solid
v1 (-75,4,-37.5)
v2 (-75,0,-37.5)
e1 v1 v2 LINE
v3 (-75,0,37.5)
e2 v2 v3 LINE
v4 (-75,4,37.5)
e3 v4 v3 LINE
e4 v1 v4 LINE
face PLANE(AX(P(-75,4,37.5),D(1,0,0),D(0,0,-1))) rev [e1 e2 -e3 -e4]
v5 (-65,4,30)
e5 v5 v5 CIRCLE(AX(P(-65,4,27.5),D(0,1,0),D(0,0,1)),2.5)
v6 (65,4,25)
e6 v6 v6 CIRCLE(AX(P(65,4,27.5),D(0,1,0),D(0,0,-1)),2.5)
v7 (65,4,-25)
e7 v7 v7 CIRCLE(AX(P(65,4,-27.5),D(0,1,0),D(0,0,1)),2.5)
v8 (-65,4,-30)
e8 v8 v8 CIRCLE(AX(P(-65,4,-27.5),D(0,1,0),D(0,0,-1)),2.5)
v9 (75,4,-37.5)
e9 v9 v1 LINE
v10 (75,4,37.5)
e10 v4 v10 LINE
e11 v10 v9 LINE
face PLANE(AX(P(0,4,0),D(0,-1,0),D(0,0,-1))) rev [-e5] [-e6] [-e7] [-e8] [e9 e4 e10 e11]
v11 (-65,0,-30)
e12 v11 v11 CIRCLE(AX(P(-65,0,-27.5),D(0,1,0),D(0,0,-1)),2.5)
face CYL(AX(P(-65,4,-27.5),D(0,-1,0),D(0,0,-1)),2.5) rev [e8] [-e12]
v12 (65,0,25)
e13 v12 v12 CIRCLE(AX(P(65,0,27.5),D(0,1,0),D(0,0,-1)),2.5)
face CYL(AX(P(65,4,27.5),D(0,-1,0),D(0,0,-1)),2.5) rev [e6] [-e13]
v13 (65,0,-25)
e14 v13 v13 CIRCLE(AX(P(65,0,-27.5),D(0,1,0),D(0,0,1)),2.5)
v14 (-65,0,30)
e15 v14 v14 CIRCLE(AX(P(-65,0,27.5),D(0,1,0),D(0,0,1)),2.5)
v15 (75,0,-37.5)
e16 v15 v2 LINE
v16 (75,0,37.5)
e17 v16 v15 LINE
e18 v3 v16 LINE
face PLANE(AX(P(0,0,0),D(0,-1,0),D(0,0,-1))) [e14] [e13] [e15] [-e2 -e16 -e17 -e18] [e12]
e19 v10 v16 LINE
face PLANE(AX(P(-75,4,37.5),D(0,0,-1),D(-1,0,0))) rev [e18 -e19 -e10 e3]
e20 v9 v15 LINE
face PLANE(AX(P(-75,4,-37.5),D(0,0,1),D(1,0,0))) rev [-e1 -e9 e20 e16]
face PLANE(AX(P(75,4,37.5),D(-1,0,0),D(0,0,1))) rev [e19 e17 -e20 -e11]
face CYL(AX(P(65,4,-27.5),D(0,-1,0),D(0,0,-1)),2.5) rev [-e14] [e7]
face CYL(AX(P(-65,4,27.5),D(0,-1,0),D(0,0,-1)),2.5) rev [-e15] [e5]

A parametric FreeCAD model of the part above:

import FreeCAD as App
import Part
import Sketcher


def add_polygon(sketch, points):
    """Adds a closed chain of lines whose ends are joined by coincident constraints."""
    first, n = sketch.GeometryCount, len(points)
    for a, b in zip(points, points[1:] + points[:1]):
        sketch.addGeometry(Part.LineSegment(App.Vector(*a, 0), App.Vector(*b, 0)), False)
    for i in range(n):
        sketch.addConstraint(Sketcher.Constraint("Coincident", first + i, 2, first + (i + 1) % n, 1))

doc = App.newDocument("Part")
body = doc.addObject("PartDesign::Body", "Body")

# Sketch on XZ plane
sketch1 = body.newObject("Sketcher::SketchObject", "Sketch")
sketch1.AttachmentSupport = (doc.getObject("XZ_Plane"), [""])
sketch1.MapMode = "FlatFace"
add_polygon(sketch1, [(-75, -37.5), (-75, 37.5), (75, 37.5), (75, -37.5)])  # lines 0-3
sketch1.addGeometry(Part.Circle(App.Vector(-65, 27.5, 0), App.Vector(0, 0, 1), 2.5), False)  # 4
sketch1.addGeometry(Part.Circle(App.Vector(65, 27.5, 0), App.Vector(0, 0, 1), 2.5), False)  # 5
sketch1.addGeometry(Part.Circle(App.Vector(-65, -27.5, 0), App.Vector(0, 0, 1), 2.5), False)  # 6
sketch1.addGeometry(Part.Circle(App.Vector(65, -27.5, 0), App.Vector(0, 0, 1), 2.5), False)  # 7
sketch1.addConstraint(Sketcher.Constraint("Vertical", 0))
sketch1.addConstraint(Sketcher.Constraint("Horizontal", 1))
sketch1.addConstraint(Sketcher.Constraint("Vertical", 2))
sketch1.addConstraint(Sketcher.Constraint("Horizontal", 3))
sketch1.addConstraint(Sketcher.Constraint("Equal", 4, 5))
sketch1.addConstraint(Sketcher.Constraint("Equal", 5, 6))
sketch1.addConstraint(Sketcher.Constraint("Equal", 6, 7))
sketch1.addConstraint(Sketcher.Constraint("Symmetric", 5, 3, 6, 3, -1, 1))
sketch1.addConstraint(Sketcher.Constraint("Symmetric", 4, 3, 7, 3, -1, 1))
sketch1.addConstraint(Sketcher.Constraint("Symmetric", 0, 2, 2, 2, -1, 1))
sketch1.addConstraint(Sketcher.Constraint("Symmetric", 4, 3, 5, 3, -2))
sketch1.addConstraint(Sketcher.Constraint("Diameter", 4, 5.0))
sketch1.addConstraint(Sketcher.Constraint("DistanceX", 1, 1, 1, 2, 150.0))
sketch1.addConstraint(Sketcher.Constraint("DistanceY", 0, 1, 0, 2, 75.0))
sketch1.addConstraint(Sketcher.Constraint("DistanceX", 4, 3, -1, 1, 65.0))
sketch1.addConstraint(Sketcher.Constraint("DistanceY", 6, 3, 4, 3, 55.0))
pad1 = body.newObject("PartDesign::Pad", "Pad")
pad1.Profile = sketch1
pad1.Length = 4
pad1.Reversed = True

doc.recompute()
